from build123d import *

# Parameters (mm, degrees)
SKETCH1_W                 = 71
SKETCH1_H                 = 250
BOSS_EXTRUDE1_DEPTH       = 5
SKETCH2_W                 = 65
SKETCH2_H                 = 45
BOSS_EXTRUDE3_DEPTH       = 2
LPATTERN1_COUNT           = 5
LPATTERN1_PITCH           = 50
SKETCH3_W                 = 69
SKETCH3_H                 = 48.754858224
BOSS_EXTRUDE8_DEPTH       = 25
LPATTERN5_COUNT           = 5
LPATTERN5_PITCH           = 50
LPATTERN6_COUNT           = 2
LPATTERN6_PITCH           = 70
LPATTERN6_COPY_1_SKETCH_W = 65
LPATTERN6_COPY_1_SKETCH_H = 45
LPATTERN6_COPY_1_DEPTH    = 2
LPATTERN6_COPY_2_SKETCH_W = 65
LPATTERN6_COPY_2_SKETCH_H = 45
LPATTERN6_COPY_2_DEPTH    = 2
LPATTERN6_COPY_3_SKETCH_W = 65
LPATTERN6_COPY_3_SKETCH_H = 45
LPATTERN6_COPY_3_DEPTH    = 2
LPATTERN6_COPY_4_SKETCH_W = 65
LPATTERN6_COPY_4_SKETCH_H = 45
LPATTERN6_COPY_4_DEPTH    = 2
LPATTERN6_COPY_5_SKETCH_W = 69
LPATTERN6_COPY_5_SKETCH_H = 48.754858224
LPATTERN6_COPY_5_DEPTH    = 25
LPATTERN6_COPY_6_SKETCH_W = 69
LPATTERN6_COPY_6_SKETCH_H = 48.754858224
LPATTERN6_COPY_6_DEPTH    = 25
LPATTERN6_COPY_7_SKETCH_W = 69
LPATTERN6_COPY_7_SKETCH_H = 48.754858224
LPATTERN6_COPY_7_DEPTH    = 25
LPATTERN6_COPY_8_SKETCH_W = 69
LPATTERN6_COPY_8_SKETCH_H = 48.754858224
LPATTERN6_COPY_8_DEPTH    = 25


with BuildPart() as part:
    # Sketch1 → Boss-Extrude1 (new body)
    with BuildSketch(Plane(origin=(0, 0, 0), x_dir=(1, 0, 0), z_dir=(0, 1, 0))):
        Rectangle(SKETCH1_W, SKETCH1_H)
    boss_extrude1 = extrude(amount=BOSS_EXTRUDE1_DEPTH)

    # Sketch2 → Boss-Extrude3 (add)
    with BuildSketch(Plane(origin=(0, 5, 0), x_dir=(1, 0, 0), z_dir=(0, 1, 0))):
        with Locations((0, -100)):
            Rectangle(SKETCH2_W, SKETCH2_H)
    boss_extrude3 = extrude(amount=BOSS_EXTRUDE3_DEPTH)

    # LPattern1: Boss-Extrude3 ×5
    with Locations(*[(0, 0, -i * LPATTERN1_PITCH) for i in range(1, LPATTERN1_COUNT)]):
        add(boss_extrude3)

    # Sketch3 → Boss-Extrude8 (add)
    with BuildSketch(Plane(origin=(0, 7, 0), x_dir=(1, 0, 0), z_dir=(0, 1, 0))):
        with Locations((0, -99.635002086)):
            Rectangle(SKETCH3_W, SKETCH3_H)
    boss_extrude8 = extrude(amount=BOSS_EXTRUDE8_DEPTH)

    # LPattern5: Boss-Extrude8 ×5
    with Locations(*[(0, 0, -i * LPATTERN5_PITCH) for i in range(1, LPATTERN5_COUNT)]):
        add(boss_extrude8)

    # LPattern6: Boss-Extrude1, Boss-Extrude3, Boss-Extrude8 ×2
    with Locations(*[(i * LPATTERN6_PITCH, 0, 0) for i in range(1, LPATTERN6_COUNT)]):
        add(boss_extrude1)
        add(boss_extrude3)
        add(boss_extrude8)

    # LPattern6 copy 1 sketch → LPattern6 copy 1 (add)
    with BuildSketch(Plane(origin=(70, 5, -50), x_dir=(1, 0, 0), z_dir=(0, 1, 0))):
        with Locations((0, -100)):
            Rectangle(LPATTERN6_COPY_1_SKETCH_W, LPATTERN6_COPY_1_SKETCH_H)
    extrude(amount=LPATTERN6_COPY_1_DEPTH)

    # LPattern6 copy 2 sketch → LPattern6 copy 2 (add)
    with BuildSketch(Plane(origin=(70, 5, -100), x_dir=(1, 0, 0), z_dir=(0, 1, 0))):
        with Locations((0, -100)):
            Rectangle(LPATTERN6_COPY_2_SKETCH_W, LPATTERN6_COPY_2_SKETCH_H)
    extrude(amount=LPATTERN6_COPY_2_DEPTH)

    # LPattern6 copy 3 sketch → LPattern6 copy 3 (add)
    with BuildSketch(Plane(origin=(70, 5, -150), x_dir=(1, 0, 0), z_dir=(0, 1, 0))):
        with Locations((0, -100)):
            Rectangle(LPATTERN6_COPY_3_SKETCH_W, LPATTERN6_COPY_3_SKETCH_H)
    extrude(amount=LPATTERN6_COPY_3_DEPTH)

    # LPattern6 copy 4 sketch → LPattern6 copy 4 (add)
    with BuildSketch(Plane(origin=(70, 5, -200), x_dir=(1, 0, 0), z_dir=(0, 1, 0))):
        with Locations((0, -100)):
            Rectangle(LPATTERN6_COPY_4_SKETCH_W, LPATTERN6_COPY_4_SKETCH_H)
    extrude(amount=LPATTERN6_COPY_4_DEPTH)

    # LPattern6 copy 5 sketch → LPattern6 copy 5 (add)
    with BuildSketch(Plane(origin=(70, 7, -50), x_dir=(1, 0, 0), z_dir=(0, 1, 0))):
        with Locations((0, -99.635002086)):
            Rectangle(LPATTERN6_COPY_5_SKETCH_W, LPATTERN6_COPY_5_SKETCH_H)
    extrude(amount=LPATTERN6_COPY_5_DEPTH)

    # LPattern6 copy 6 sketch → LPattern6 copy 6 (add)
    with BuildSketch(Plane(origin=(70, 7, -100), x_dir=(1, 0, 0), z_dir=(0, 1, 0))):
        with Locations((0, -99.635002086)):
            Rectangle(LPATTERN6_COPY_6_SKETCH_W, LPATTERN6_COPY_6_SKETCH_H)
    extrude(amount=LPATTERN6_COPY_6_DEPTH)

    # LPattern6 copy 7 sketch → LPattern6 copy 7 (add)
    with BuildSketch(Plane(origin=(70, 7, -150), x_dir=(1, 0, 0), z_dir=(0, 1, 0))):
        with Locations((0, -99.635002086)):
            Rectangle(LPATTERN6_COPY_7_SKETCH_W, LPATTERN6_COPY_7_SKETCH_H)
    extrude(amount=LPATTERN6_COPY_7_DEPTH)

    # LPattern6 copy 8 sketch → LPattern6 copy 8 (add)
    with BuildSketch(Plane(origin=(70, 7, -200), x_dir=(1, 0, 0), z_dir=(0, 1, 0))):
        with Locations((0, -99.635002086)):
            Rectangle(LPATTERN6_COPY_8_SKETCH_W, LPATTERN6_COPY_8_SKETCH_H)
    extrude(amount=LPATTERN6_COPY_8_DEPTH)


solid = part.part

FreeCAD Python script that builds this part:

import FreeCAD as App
import Part
import Sketcher
Q = App.Units.Quantity


def add_polygon(sketch, points):
    """Adds a closed chain of lines whose ends are joined by coincident constraints."""
    first, n = sketch.GeometryCount, len(points)
    for a, b in zip(points, points[1:] + points[:1]):
        sketch.addGeometry(Part.LineSegment(App.Vector(*a, 0), App.Vector(*b, 0)), False)
    for i in range(n):
        sketch.addConstraint(Sketcher.Constraint("Coincident", first + i, 2, first + (i + 1) % n, 1))

doc = App.newDocument("Part")
body = doc.addObject("PartDesign::Body", "Body")

sketch1 = body.newObject("Sketcher::SketchObject", "Sketch")
sketch1.AttachmentSupport = (doc.getObject("XZ_Plane"), [""])
sketch1.MapMode = "FlatFace"
add_polygon(sketch1, [(-35.5, -125), (-35.5, 125), (35.5, 125), (35.5, -125)])
sketch1.addConstraint([
    Sketcher.Constraint("Vertical", 0),
    Sketcher.Constraint("Horizontal", 1),
    Sketcher.Constraint("Vertical", 2),
    Sketcher.Constraint("Horizontal", 3),
    Sketcher.Constraint("Symmetric", 0, 2, 2, 2, -1, 1),
    Sketcher.Constraint("DistanceX", 1, 1, 1, 2, Q("71 mm")),
    Sketcher.Constraint("DistanceY", 0, 1, 0, 2, Q("250 mm")),
])
pad1 = body.newObject("PartDesign::Pad", "Pad")
pad1.Profile = sketch1
pad1.Length = 5
pad1.Reversed = True

sketch2 = body.newObject("Sketcher::SketchObject", "Sketch001")
sketch2.AttachmentSupport = (doc.getObject("XZ_Plane"), [""])
sketch2.MapMode = "FlatFace"
sketch2.AttachmentOffset = App.Placement(App.Vector(0, 0, -5), App.Rotation())
add_polygon(sketch2, [(-32.5, 77.5), (-32.5, 122.5), (32.5, 122.5), (32.5, 77.5)])
sketch2.addConstraint([
    Sketcher.Constraint("Vertical", 0),
    Sketcher.Constraint("Horizontal", 1),
    Sketcher.Constraint("Vertical", 2),
    Sketcher.Constraint("Horizontal", 3),
    Sketcher.Constraint("DistanceX", 1, 1, 1, 2, Q("65 mm")),
    Sketcher.Constraint("DistanceY", 0, 1, 0, 2, Q("45 mm")),
    Sketcher.Constraint("DistanceX", 0, 2, -1, 1, Q("32.5 mm")),
    Sketcher.Constraint("DistanceY", -1, 1, 0, 2, Q("122.5 mm")),
])
pad2 = body.newObject("PartDesign::Pad", "Pad001")
pad2.Profile = sketch2
pad2.Length = 2
pad2.Reversed = True
doc.recompute()

linearpattern = body.newObject("PartDesign::LinearPattern", "LinearPattern")
linearpattern.Originals = [pad2]
linearpattern.Direction = (doc.getObject("Z_Axis"), [""])
linearpattern.Mode = "offset"
linearpattern.Offset = 50
linearpattern.Occurrences = 5
linearpattern.Reversed = True
body.Tip = linearpattern

sketch3 = body.newObject("Sketcher::SketchObject", "Sketch002")
sketch3.AttachmentSupport = (doc.getObject("XZ_Plane"), [""])
sketch3.MapMode = "FlatFace"
sketch3.AttachmentOffset = App.Placement(App.Vector(0, 0, -7), App.Rotation())
add_polygon(sketch3, [(-34.5, 75.257573), (-34.5, 124.012431), (34.5, 124.012431), (34.5, 75.257573)])
sketch3.addConstraint([
    Sketcher.Constraint("Vertical", 0),
    Sketcher.Constraint("Horizontal", 1),
    Sketcher.Constraint("Vertical", 2),
    Sketcher.Constraint("Horizontal", 3),
    Sketcher.Constraint("DistanceX", 1, 1, 1, 2, Q("69 mm")),
    Sketcher.Constraint("DistanceX", 0, 2, -1, 1, Q("34.5 mm")),
    Sketcher.Constraint("DistanceY", 0, 1, 0, 2, Q("48.754858 mm")),
    Sketcher.Constraint("DistanceY", -1, 1, 0, 2, Q("124.012431 mm")),
])
pad3 = body.newObject("PartDesign::Pad", "Pad002")
pad3.Profile = sketch3
pad3.Length = 25
pad3.Reversed = True
doc.recompute()

linearpattern2 = body.newObject("PartDesign::LinearPattern", "LinearPattern001")
linearpattern2.Originals = [pad3]
linearpattern2.Direction = (doc.getObject("Z_Axis"), [""])
linearpattern2.Mode = "offset"
linearpattern2.Offset = 50
linearpattern2.Occurrences = 5
linearpattern2.Reversed = True
body.Tip = linearpattern2
doc.recompute()

linearpattern3 = body.newObject("PartDesign::LinearPattern", "LinearPattern002")
linearpattern3.Originals = [pad1, pad2, pad3]
linearpattern3.Direction = (doc.getObject("X_Axis"), [""])
linearpattern3.Mode = "offset"
linearpattern3.Offset = 70
linearpattern3.Occurrences = 2
body.Tip = linearpattern3

sketch4 = body.newObject("Sketcher::SketchObject", "Sketch003")
sketch4.AttachmentSupport = (doc.getObject("XZ_Plane"), [""])
sketch4.MapMode = "FlatFace"
sketch4.AttachmentOffset = App.Placement(App.Vector(0, 0, -5), App.Rotation())
add_polygon(sketch4, [(37.5, 27.5), (37.5, 72.5), (102.5, 72.5), (102.5, 27.5)])
sketch4.addConstraint([
    Sketcher.Constraint("Vertical", 0),
    Sketcher.Constraint("Horizontal", 1),
    Sketcher.Constraint("Vertical", 2),
    Sketcher.Constraint("Horizontal", 3),
    Sketcher.Constraint("DistanceX", 1, 1, 1, 2, Q("65 mm")),
    Sketcher.Constraint("DistanceY", 0, 1, 0, 2, Q("45 mm")),
    Sketcher.Constraint("DistanceX", -1, 1, 0, 2, Q("37.5 mm")),
    Sketcher.Constraint("DistanceY", -1, 1, 0, 2, Q("72.5 mm")),
])
pad4 = body.newObject("PartDesign::Pad", "Pad003")
pad4.Profile = sketch4
pad4.Length = 2
pad4.Reversed = True

sketch5 = body.newObject("Sketcher::SketchObject", "Sketch004")
sketch5.AttachmentSupport = (doc.getObject("XZ_Plane"), [""])
sketch5.MapMode = "FlatFace"
sketch5.AttachmentOffset = App.Placement(App.Vector(0, 0, -5), App.Rotation())
add_polygon(sketch5, [(37.5, -22.5), (37.5, 22.5), (102.5, 22.5), (102.5, -22.5)])
sketch5.addConstraint([
    Sketcher.Constraint("Vertical", 0),
    Sketcher.Constraint("Horizontal", 1),
    Sketcher.Constraint("Vertical", 2),
    Sketcher.Constraint("Horizontal", 3),
    Sketcher.Constraint("DistanceX", 1, 1, 1, 2, Q("65 mm")),
    Sketcher.Constraint("DistanceY", 0, 1, 0, 2, Q("45 mm")),
    Sketcher.Constraint("DistanceX", -1, 1, 0, 2, Q("37.5 mm")),
    Sketcher.Constraint("DistanceY", -1, 1, 0, 2, Q("22.5 mm")),
])
pad5 = body.newObject("PartDesign::Pad", "Pad004")
pad5.Profile = sketch5
pad5.Length = 2
pad5.Reversed = True

sketch6 = body.newObject("Sketcher::SketchObject", "Sketch005")
sketch6.AttachmentSupport = (doc.getObject("XZ_Plane"), [""])
sketch6.MapMode = "FlatFace"
sketch6.AttachmentOffset = App.Placement(App.Vector(0, 0, -5), App.Rotation())
add_polygon(sketch6, [(37.5, -72.5), (37.5, -27.5), (102.5, -27.5), (102.5, -72.5)])
sketch6.addConstraint([
    Sketcher.Constraint("Vertical", 0),
    Sketcher.Constraint("Horizontal", 1),
    Sketcher.Constraint("Vertical", 2),
    Sketcher.Constraint("Horizontal", 3),
    Sketcher.Constraint("DistanceX", 1, 1, 1, 2, Q("65 mm")),
    Sketcher.Constraint("DistanceY", 0, 1, 0, 2, Q("45 mm")),
    Sketcher.Constraint("DistanceX", -1, 1, 0, 2, Q("37.5 mm")),
    Sketcher.Constraint("DistanceY", 0, 2, -1, 1, Q("27.5 mm")),
])
pad6 = body.newObject("PartDesign::Pad", "Pad005")
pad6.Profile = sketch6
pad6.Length = 2
pad6.Reversed = True

sketch7 = body.newObject("Sketcher::SketchObject", "Sketch006")
sketch7.AttachmentSupport = (doc.getObject("XZ_Plane"), [""])
sketch7.MapMode = "FlatFace"
sketch7.AttachmentOffset = App.Placement(App.Vector(0, 0, -5), App.Rotation())
add_polygon(sketch7, [(37.5, -122.5), (37.5, -77.5), (102.5, -77.5), (102.5, -122.5)])
sketch7.addConstraint([
    Sketcher.Constraint("Vertical", 0),
    Sketcher.Constraint("Horizontal", 1),
    Sketcher.Constraint("Vertical", 2),
    Sketcher.Constraint("Horizontal", 3),
    Sketcher.Constraint("DistanceX", 1, 1, 1, 2, Q("65 mm")),
    Sketcher.Constraint("DistanceY", 0, 1, 0, 2, Q("45 mm")),
    Sketcher.Constraint("DistanceX", -1, 1, 0, 2, Q("37.5 mm")),
    Sketcher.Constraint("DistanceY", 0, 2, -1, 1, Q("77.5 mm")),
])
pad7 = body.newObject("PartDesign::Pad", "Pad006")
pad7.Profile = sketch7
pad7.Length = 2
pad7.Reversed = True

sketch8 = body.newObject("Sketcher::SketchObject", "Sketch007")
sketch8.AttachmentSupport = (doc.getObject("XZ_Plane"), [""])
sketch8.MapMode = "FlatFace"
sketch8.AttachmentOffset = App.Placement(App.Vector(0, 0, -7), App.Rotation())
add_polygon(sketch8, [(35.5, 25.257573), (35.5, 74.012431), (104.5, 74.012431), (104.5, 25.257573)])
sketch8.addConstraint([
    Sketcher.Constraint("Vertical", 0),
    Sketcher.Constraint("Horizontal", 1),
    Sketcher.Constraint("Vertical", 2),
    Sketcher.Constraint("Horizontal", 3),
    Sketcher.Constraint("DistanceX", 1, 1, 1, 2, Q("69 mm")),
    Sketcher.Constraint("DistanceX", -1, 1, 0, 2, Q("35.5 mm")),
    Sketcher.Constraint("DistanceY", 0, 1, 0, 2, Q("48.754858 mm")),
    Sketcher.Constraint("DistanceY", -1, 1, 0, 2, Q("74.012431 mm")),
])
pad8 = body.newObject("PartDesign::Pad", "Pad007")
pad8.Profile = sketch8
pad8.Length = 25
pad8.Reversed = True

sketch9 = body.newObject("Sketcher::SketchObject", "Sketch008")
sketch9.AttachmentSupport = (doc.getObject("XZ_Plane"), [""])
sketch9.MapMode = "FlatFace"
sketch9.AttachmentOffset = App.Placement(App.Vector(0, 0, -7), App.Rotation())
add_polygon(sketch9, [(35.5, -24.742427), (35.5, 24.012431), (104.5, 24.012431), (104.5, -24.742427)])
sketch9.addConstraint([
    Sketcher.Constraint("Vertical", 0),
    Sketcher.Constraint("Horizontal", 1),
    Sketcher.Constraint("Vertical", 2),
    Sketcher.Constraint("Horizontal", 3),
    Sketcher.Constraint("DistanceX", 1, 1, 1, 2, Q("69 mm")),
    Sketcher.Constraint("DistanceX", -1, 1, 0, 2, Q("35.5 mm")),
    Sketcher.Constraint("DistanceY", 0, 1, 0, 2, Q("48.754858 mm")),
    Sketcher.Constraint("DistanceY", -1, 1, 0, 2, Q("24.012431 mm")),
])
pad9 = body.newObject("PartDesign::Pad", "Pad008")
pad9.Profile = sketch9
pad9.Length = 25
pad9.Reversed = True

sketch10 = body.newObject("Sketcher::SketchObject", "Sketch009")
sketch10.AttachmentSupport = (doc.getObject("XZ_Plane"), [""])
sketch10.MapMode = "FlatFace"
sketch10.AttachmentOffset = App.Placement(App.Vector(0, 0, -7), App.Rotation())
add_polygon(sketch10, [(35.5, -74.742427), (35.5, -25.987569), (104.5, -25.987569), (104.5, -74.742427)])
sketch10.addConstraint([
    Sketcher.Constraint("Vertical", 0),
    Sketcher.Constraint("Horizontal", 1),
    Sketcher.Constraint("Vertical", 2),
    Sketcher.Constraint("Horizontal", 3),
    Sketcher.Constraint("DistanceX", 1, 1, 1, 2, Q("69 mm")),
    Sketcher.Constraint("DistanceX", -1, 1, 0, 2, Q("35.5 mm")),
    Sketcher.Constraint("DistanceY", 0, 1, 0, 2, Q("48.754858 mm")),
    Sketcher.Constraint("DistanceY", 0, 2, -1, 1, Q("25.987569 mm")),
])
pad10 = body.newObject("PartDesign::Pad", "Pad009")
pad10.Profile = sketch10
pad10.Length = 25
pad10.Reversed = True

sketch11 = body.newObject("Sketcher::SketchObject", "Sketch010")
sketch11.AttachmentSupport = (doc.getObject("XZ_Plane"), [""])
sketch11.MapMode = "FlatFace"
sketch11.AttachmentOffset = App.Placement(App.Vector(0, 0, -7), App.Rotation())
add_polygon(sketch11, [(35.5, -124.742427), (35.5, -75.987569), (104.5, -75.987569), (104.5, -124.742427)])
sketch11.addConstraint([
    Sketcher.Constraint("Vertical", 0),
    Sketcher.Constraint("Horizontal", 1),
    Sketcher.Constraint("Vertical", 2),
    Sketcher.Constraint("Horizontal", 3),
    Sketcher.Constraint("DistanceX", 1, 1, 1, 2, Q("69 mm")),
    Sketcher.Constraint("DistanceX", -1, 1, 0, 2, Q("35.5 mm")),
    Sketcher.Constraint("DistanceY", 0, 1, 0, 2, Q("48.754858 mm")),
    Sketcher.Constraint("DistanceY", 0, 2, -1, 1, Q("75.987569 mm")),
])
pad11 = body.newObject("PartDesign::Pad", "Pad010")
pad11.Profile = sketch11
pad11.Length = 25
pad11.Reversed = True

doc.recompute()
